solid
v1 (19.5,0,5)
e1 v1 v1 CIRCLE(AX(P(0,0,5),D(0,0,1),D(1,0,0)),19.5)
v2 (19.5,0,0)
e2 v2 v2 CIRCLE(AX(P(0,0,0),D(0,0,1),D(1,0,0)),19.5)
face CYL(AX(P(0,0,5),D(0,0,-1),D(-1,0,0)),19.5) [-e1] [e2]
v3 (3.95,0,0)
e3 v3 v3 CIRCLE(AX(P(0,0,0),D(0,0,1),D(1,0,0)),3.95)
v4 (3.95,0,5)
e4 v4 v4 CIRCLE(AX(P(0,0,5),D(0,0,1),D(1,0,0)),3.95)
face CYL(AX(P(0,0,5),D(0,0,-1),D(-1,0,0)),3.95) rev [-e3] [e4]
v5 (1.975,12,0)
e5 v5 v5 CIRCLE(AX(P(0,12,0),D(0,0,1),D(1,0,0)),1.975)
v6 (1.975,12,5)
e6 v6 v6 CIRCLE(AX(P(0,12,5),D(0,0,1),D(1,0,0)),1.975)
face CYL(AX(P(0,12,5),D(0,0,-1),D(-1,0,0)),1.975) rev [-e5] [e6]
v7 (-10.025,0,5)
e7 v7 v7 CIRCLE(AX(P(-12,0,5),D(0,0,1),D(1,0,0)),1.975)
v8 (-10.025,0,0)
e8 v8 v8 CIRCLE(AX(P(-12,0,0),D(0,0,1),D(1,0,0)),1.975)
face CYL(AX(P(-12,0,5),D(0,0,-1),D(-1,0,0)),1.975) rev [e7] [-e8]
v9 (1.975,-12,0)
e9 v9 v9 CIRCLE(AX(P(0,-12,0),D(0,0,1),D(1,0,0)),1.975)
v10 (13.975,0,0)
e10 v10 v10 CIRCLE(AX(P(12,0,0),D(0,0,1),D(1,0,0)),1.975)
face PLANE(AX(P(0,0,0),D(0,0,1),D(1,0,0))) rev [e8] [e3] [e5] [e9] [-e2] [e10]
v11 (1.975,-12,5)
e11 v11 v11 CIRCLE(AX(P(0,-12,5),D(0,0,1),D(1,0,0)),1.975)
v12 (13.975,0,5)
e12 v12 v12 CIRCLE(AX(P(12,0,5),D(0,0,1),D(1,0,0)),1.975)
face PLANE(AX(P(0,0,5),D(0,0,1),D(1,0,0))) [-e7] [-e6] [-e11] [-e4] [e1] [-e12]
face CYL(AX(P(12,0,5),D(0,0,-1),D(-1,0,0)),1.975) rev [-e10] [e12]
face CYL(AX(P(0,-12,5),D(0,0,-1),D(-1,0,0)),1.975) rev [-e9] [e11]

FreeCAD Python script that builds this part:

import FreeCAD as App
import Part
import Sketcher
from FreeCAD import Vector

doc = App.newDocument("Part")
body = doc.addObject("PartDesign::Body", "Body")

# Sketch on XY plane
sketch1 = body.newObject("Sketcher::SketchObject", "Sketch")
sketch1.AttachmentSupport = (doc.getObject("XY_Plane"), [""])
sketch1.MapMode = "FlatFace"
sketch1.addGeometry(Part.Circle(Vector(0, 0, 0), Vector(0, 0, 1), 19.5), False)
sketch1.addGeometry(Part.Circle(Vector(0, -12, 0), Vector(0, 0, 1), 2), False)
sketch1.addGeometry(Part.Circle(Vector(-12, 0, 0), Vector(0, 0, 1), 2), False)
sketch1.addGeometry(Part.Circle(Vector(0, 0, 0), Vector(0, 0, 1), 4), False)
sketch1.addGeometry(Part.Circle(Vector(12, 0, 0), Vector(0, 0, 1), 2), False)
sketch1.addGeometry(Part.Circle(Vector(0, 12, 0), Vector(0, 0, 1), 2), False)
sketch1.addConstraint(Sketcher.Constraint("Coincident", 0, 3, -1, 1))
sketch1.addConstraint(Sketcher.Constraint("Coincident", 3, 3, -1, 1))
sketch1.addConstraint(Sketcher.Constraint("Equal", 1, 2))
sketch1.addConstraint(Sketcher.Constraint("Equal", 2, 4))
sketch1.addConstraint(Sketcher.Constraint("Equal", 4, 5))
sketch1.addConstraint(Sketcher.Constraint("Symmetric", 2, 3, 4, 3, -1, 1))
sketch1.addConstraint(Sketcher.Constraint("Symmetric", 1, 3, 5, 3, -1, 1))
sketch1.addConstraint(Sketcher.Constraint("PointOnObject", 1, 3, -2))
sketch1.addConstraint(Sketcher.Constraint("PointOnObject", 2, 3, -1))
sketch1.addConstraint(Sketcher.Constraint("Diameter", 0, 39.0))
sketch1.addConstraint(Sketcher.Constraint("Diameter", 3, 7.9))
sketch1.addConstraint(Sketcher.Constraint("Diameter", 1, 3.95))
sketch1.addConstraint(Sketcher.Constraint("DistanceY", 1, 3, -1, 1, 12.0))
sketch1.addConstraint(Sketcher.Constraint("DistanceX", 2, 3, -1, 1, 12.0))
pad1 = body.newObject("PartDesign::Pad", "Pad")
pad1.Profile = sketch1
pad1.Length = 5

doc.recompute()
